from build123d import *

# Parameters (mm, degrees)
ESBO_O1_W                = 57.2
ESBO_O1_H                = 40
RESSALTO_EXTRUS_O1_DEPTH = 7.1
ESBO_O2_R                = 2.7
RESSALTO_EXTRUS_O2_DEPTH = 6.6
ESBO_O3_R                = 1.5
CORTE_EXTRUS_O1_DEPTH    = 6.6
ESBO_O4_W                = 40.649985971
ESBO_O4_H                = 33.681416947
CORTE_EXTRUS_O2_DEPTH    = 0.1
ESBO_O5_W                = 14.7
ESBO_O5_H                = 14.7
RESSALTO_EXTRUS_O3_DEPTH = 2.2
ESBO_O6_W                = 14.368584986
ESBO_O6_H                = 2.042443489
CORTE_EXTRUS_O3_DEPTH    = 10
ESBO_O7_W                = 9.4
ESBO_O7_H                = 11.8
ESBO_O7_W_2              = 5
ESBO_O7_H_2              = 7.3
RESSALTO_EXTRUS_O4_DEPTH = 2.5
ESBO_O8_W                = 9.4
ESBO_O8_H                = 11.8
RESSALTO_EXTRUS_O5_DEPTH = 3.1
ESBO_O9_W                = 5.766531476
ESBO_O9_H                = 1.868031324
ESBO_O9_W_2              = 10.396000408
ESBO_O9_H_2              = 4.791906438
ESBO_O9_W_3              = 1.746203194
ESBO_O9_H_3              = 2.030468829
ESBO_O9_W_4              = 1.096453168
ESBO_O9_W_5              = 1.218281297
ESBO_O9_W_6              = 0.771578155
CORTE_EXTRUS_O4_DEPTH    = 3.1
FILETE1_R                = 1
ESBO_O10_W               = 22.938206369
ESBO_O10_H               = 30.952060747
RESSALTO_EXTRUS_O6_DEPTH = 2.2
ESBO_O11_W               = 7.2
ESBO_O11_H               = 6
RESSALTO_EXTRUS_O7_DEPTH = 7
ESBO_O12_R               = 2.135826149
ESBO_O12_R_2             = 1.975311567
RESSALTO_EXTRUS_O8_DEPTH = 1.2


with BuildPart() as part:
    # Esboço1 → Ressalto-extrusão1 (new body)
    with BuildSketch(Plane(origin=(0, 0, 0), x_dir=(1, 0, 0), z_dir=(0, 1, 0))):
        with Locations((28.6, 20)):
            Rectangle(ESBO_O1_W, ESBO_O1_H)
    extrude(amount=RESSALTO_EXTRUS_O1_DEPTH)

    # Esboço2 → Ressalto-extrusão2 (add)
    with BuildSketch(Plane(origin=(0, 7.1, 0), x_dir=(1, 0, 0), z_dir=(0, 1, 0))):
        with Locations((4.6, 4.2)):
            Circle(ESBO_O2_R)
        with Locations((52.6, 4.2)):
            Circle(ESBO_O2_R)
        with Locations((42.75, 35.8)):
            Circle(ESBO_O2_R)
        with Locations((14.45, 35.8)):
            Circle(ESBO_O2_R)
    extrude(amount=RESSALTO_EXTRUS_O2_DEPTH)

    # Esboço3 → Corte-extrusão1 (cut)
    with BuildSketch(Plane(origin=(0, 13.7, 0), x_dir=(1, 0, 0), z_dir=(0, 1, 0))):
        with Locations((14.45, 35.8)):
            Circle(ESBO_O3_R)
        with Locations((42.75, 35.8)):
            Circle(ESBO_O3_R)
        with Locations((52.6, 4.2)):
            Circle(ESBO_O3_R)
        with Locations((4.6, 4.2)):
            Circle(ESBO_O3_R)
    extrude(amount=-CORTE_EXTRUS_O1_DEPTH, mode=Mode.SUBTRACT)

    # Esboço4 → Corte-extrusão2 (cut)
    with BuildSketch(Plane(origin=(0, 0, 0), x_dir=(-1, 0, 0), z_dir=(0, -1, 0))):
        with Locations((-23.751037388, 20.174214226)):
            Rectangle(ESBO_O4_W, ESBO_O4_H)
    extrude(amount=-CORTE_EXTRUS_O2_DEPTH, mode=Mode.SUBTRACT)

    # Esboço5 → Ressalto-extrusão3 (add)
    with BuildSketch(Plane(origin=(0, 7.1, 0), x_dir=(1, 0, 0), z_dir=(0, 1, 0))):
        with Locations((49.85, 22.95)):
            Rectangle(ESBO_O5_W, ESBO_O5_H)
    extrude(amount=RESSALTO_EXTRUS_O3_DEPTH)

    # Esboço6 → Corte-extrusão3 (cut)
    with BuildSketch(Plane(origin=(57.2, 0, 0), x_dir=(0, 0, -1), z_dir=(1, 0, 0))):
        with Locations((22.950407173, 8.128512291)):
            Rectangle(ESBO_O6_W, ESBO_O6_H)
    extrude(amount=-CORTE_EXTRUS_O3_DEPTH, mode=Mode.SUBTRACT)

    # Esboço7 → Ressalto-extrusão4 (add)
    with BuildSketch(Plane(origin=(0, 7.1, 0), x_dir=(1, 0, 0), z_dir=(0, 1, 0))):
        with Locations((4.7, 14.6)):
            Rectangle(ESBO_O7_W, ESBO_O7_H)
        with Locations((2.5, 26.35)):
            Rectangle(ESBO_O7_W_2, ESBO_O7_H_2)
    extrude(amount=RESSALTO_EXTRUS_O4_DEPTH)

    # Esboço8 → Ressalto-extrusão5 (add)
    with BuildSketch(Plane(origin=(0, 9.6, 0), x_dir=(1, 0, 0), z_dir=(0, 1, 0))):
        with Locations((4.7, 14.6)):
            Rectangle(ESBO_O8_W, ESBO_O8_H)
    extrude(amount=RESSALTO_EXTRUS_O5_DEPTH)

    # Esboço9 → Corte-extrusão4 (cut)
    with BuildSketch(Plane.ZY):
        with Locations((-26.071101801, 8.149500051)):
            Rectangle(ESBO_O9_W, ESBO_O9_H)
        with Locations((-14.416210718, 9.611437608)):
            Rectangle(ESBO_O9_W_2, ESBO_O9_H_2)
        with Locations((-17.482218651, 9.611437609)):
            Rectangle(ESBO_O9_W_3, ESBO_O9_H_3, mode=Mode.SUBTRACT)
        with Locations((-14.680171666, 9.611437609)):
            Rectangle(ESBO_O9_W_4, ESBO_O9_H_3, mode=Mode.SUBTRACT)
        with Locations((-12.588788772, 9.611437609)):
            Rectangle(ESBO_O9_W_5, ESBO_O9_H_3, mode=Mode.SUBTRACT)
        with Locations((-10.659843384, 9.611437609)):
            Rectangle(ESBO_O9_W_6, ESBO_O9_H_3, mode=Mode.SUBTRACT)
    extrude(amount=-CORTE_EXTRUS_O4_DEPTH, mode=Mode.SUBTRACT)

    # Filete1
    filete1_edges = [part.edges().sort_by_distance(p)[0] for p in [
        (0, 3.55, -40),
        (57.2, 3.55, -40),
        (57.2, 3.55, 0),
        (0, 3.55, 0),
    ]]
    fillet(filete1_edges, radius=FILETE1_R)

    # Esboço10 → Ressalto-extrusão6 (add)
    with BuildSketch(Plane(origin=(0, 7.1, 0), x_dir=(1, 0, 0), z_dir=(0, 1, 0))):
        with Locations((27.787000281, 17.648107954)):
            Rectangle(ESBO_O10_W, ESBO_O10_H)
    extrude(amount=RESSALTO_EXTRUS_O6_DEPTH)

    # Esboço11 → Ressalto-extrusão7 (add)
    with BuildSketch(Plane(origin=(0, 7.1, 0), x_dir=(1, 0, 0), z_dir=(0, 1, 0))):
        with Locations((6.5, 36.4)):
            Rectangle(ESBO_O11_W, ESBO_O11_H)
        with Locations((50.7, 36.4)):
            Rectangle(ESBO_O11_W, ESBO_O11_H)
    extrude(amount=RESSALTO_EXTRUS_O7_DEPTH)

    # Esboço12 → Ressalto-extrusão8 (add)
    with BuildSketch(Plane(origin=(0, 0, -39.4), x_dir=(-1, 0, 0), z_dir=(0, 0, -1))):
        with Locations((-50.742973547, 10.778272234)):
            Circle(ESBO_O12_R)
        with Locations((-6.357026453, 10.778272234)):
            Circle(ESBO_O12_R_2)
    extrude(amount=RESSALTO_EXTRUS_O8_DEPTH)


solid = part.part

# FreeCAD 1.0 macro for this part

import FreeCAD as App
import Part
import Sketcher


def edges_at(feature, points):
    """Names of the edges that pass closest to the given points."""
    edges = feature.Shape.Edges
    near = lambda p: min(range(len(edges)), key=lambda i: edges[i].distToShape(Part.Vertex(*p))[0])
    return sorted({f"Edge{near(p) + 1}" for p in points})


def add_polygon(sketch, points):
    """Adds a closed chain of lines whose ends are joined by coincident constraints."""
    first, n = sketch.GeometryCount, len(points)
    for a, b in zip(points, points[1:] + points[:1]):
        sketch.addGeometry(Part.LineSegment(App.Vector(*a, 0), App.Vector(*b, 0)), False)
    for i in range(n):
        sketch.addConstraint(Sketcher.Constraint("Coincident", first + i, 2, first + (i + 1) % n, 1))

doc = App.newDocument("Part")
body = doc.addObject("PartDesign::Body", "Body")

# Sketch on XZ plane
sketch1 = body.newObject("Sketcher::SketchObject", "Sketch")
sketch1.AttachmentSupport = (doc.getObject("XZ_Plane"), [""])
sketch1.MapMode = "FlatFace"
add_polygon(sketch1, [(0, -40), (0, 0), (57, 0), (57, -40)])  # lines 0-3
sketch1.addConstraint([
    Sketcher.Constraint("Vertical", 0),
    Sketcher.Constraint("Horizontal", 1),
    Sketcher.Constraint("Vertical", 2),
    Sketcher.Constraint("Horizontal", 3),
    Sketcher.Constraint("Coincident", 0, 2, -1, 1),
    Sketcher.Constraint("DistanceY", 0, 1, 0, 2, 40.0),
    Sketcher.Constraint("DistanceX", 1, 1, 1, 2, 57.2),
])
pad1 = body.newObject("PartDesign::Pad", "Pad")
pad1.Profile = sketch1
pad1.Length = 7.1
pad1.Reversed = True

# Sketch on XZ plane
sketch2 = body.newObject("Sketcher::SketchObject", "Sketch001")
sketch2.AttachmentSupport = (doc.getObject("XZ_Plane"), [""])
sketch2.MapMode = "FlatFace"
sketch2.AttachmentOffset = App.Placement(App.Vector(0, 0, -7.1), App.Rotation())
sketch2.addGeometry([
    Part.Circle(App.Vector(4.6, -4.2, 0), App.Vector(0, 0, 1), 2.7),
    Part.Circle(App.Vector(52.6, -4.2, 0), App.Vector(0, 0, 1), 2.7),
    Part.Circle(App.Vector(42.8, -35.8, 0), App.Vector(0, 0, 1), 2.7),
    Part.Circle(App.Vector(14.4, -35.8, 0), App.Vector(0, 0, 1), 2.7),
], False)
sketch2.addConstraint([
    Sketcher.Constraint("Equal", 0, 1),
    Sketcher.Constraint("Equal", 1, 2),
    Sketcher.Constraint("Equal", 2, 3),
    Sketcher.Constraint("Horizontal", 0, 3, 1, 3),
    Sketcher.Constraint("Horizontal", 2, 3, 3, 3),
    Sketcher.Constraint("Diameter", 0, 5.4),
    Sketcher.Constraint("DistanceX", 0, 3, 1, 3, 48.0),
    Sketcher.Constraint("DistanceX", -1, 1, 0, 3, 4.6),
    Sketcher.Constraint("DistanceY", 0, 3, -1, 1, 4.2),
    Sketcher.Constraint("DistanceY", 2, 3, -1, 1, 35.8),
    Sketcher.Constraint("DistanceX", 3, 3, 2, 3, 28.3),
    Sketcher.Constraint("DistanceX", -1, 1, 2, 3, 42.75),
])
pad2 = body.newObject("PartDesign::Pad", "Pad001")
pad2.Profile = sketch2
pad2.Length = 6.6
pad2.Reversed = True

# Sketch on XZ plane
sketch3 = body.newObject("Sketcher::SketchObject", "Sketch002")
sketch3.AttachmentSupport = (doc.getObject("XZ_Plane"), [""])
sketch3.MapMode = "FlatFace"
sketch3.AttachmentOffset = App.Placement(App.Vector(0, 0, -13.7), App.Rotation())
sketch3.addGeometry([
    Part.Circle(App.Vector(14.4, -35.8, 0), App.Vector(0, 0, 1), 1.5),
    Part.Circle(App.Vector(42.8, -35.8, 0), App.Vector(0, 0, 1), 1.5),
    Part.Circle(App.Vector(52.6, -4.2, 0), App.Vector(0, 0, 1), 1.5),
    Part.Circle(App.Vector(4.6, -4.2, 0), App.Vector(0, 0, 1), 1.5),
], False)
sketch3.addConstraint([
    Sketcher.Constraint("Equal", 0, 1),
    Sketcher.Constraint("Equal", 1, 2),
    Sketcher.Constraint("Equal", 2, 3),
    Sketcher.Constraint("Horizontal", 0, 3, 1, 3),
    Sketcher.Constraint("Horizontal", 2, 3, 3, 3),
    Sketcher.Constraint("Diameter", 0, 3.0),
    Sketcher.Constraint("DistanceX", 3, 3, 2, 3, 48.0),
    Sketcher.Constraint("DistanceY", 0, 3, -1, 1, 35.8),
    Sketcher.Constraint("DistanceX", -1, 1, 2, 3, 52.6),
    Sketcher.Constraint("DistanceY", 2, 3, -1, 1, 4.2),
    Sketcher.Constraint("DistanceX", 0, 3, 1, 3, 28.3),
    Sketcher.Constraint("DistanceX", -1, 1, 0, 3, 14.45),
])
pocket1 = body.newObject("PartDesign::Pocket", "Pocket")
pocket1.Profile = sketch3
pocket1.Length = 6.6
pocket1.Reversed = True

# Sketch on XZ plane
sketch4 = body.newObject("Sketcher::SketchObject", "Sketch003")
sketch4.AttachmentSupport = (doc.getObject("XZ_Plane"), [""])
sketch4.MapMode = "FlatFace"
add_polygon(sketch4, [(44, -37), (44, -3), (3, -3), (3, -37)])  # lines 0-3
sketch4.addConstraint([
    Sketcher.Constraint("Vertical", 0),
    Sketcher.Constraint("Horizontal", 1),
    Sketcher.Constraint("Vertical", 2),
    Sketcher.Constraint("Horizontal", 3),
    Sketcher.Constraint("DistanceX", 1, 2, 1, 1, 40.649986),
    Sketcher.Constraint("DistanceY", 0, 1, 0, 2, 33.681417),
    Sketcher.Constraint("DistanceX", -1, 1, 0, 2, 44.07603),
    Sketcher.Constraint("DistanceY", 0, 2, -1, 1, 3.333506),
])
pocket2 = body.newObject("PartDesign::Pocket", "Pocket001")
pocket2.Profile = sketch4
pocket2.Length = 0.1

# Sketch on XZ plane
sketch5 = body.newObject("Sketcher::SketchObject", "Sketch004")
sketch5.AttachmentSupport = (doc.getObject("XZ_Plane"), [""])
sketch5.MapMode = "FlatFace"
sketch5.AttachmentOffset = App.Placement(App.Vector(0, 0, -7.1), App.Rotation())
add_polygon(sketch5, [(42, -30), (42, -16), (57, -16), (57, -30)])  # lines 0-3
sketch5.addConstraint([
    Sketcher.Constraint("Vertical", 0),
    Sketcher.Constraint("Horizontal", 1),
    Sketcher.Constraint("Vertical", 2),
    Sketcher.Constraint("Horizontal", 3),
    Sketcher.Constraint("Equal", 3, 0),
    Sketcher.Constraint("DistanceX", 1, 1, 1, 2, 14.7),
    Sketcher.Constraint("DistanceX", -1, 1, 0, 2, 42.5),
    Sketcher.Constraint("DistanceY", 0, 2, -1, 1, 15.6),
])
pad3 = body.newObject("PartDesign::Pad", "Pad002")
pad3.Profile = sketch5
pad3.Length = 2.2
pad3.Reversed = True

# Sketch on YZ plane
sketch6 = body.newObject("Sketcher::SketchObject", "Sketch005")
sketch6.AttachmentSupport = (doc.getObject("YZ_Plane"), [""])
sketch6.MapMode = "FlatFace"
sketch6.AttachmentOffset = App.Placement(App.Vector(0, 0, 57.2), App.Rotation())
add_polygon(sketch6, [(9.1, -15.8), (7.1, -15.8), (7.1, -30.1), (9.1, -30.1)])  # lines 0-3
sketch6.addConstraint([
    Sketcher.Constraint("Horizontal", 0),
    Sketcher.Constraint("Vertical", 1),
    Sketcher.Constraint("Horizontal", 2),
    Sketcher.Constraint("Vertical", 3),
    Sketcher.Constraint("DistanceY", 1, 2, -1, 1, 30.1347),
    Sketcher.Constraint("DistanceX", 0, 2, 0, 1, 2.042443),
    Sketcher.Constraint("DistanceY", 1, 2, 1, 1, 14.368585),
    Sketcher.Constraint("DistanceX", -1, 1, 0, 2, 7.107291),
])
pocket3 = body.newObject("PartDesign::Pocket", "Pocket002")
pocket3.Profile = sketch6
pocket3.Length = 10

# Sketch on XZ plane
sketch7 = body.newObject("Sketcher::SketchObject", "Sketch006")
sketch7.AttachmentSupport = (doc.getObject("XZ_Plane"), [""])
sketch7.MapMode = "FlatFace"
sketch7.AttachmentOffset = App.Placement(App.Vector(0, 0, -7.1), App.Rotation())
add_polygon(sketch7, [(0, -20), (0, -9), (9, -9), (9, -20)])  # lines 0-3
add_polygon(sketch7, [(0, -30), (0, -23), (5, -23), (5, -30)])  # lines 4-7
sketch7.addConstraint([
    Sketcher.Constraint("Vertical", 0),
    Sketcher.Constraint("Horizontal", 1),
    Sketcher.Constraint("Vertical", 2),
    Sketcher.Constraint("Horizontal", 3),
    Sketcher.Constraint("Vertical", 4),
    Sketcher.Constraint("Horizontal", 5),
    Sketcher.Constraint("Vertical", 6),
    Sketcher.Constraint("Horizontal", 7),
    Sketcher.Constraint("PointOnObject", 0, 2, -2),
    Sketcher.Constraint("PointOnObject", 4, 2, -2),
    Sketcher.Constraint("DistanceX", 5, 1, 5, 2, 5.0),
    Sketcher.Constraint("DistanceX", 1, 1, 1, 2, 9.4),
    Sketcher.Constraint("DistanceY", 0, 1, 0, 2, 11.8),
    Sketcher.Constraint("DistanceY", 4, 1, 4, 2, 7.3),
    Sketcher.Constraint("DistanceY", 6, 2, -1, 1, 30.0),
    Sketcher.Constraint("DistanceY", 4, 2, 0, 2, 14.0),
])
pad4 = body.newObject("PartDesign::Pad", "Pad003")
pad4.Profile = sketch7
pad4.Length = 2.5
pad4.Reversed = True

# Sketch on XZ plane
sketch8 = body.newObject("Sketcher::SketchObject", "Sketch007")
sketch8.AttachmentSupport = (doc.getObject("XZ_Plane"), [""])
sketch8.MapMode = "FlatFace"
sketch8.AttachmentOffset = App.Placement(App.Vector(0, 0, -9.6), App.Rotation())
add_polygon(sketch8, [(0, -20), (0, -9), (9, -9), (9, -20)])  # lines 0-3
sketch8.addConstraint([
    Sketcher.Constraint("Vertical", 0),
    Sketcher.Constraint("Horizontal", 1),
    Sketcher.Constraint("Vertical", 2),
    Sketcher.Constraint("Horizontal", 3),
    Sketcher.Constraint("PointOnObject", 0, 2, -2),
    Sketcher.Constraint("DistanceX", 1, 1, 1, 2, 9.4),
    Sketcher.Constraint("DistanceY", 0, 1, 0, 2, 11.8),
    Sketcher.Constraint("DistanceY", 0, 2, -1, 1, 8.7),
])
pad5 = body.newObject("PartDesign::Pad", "Pad004")
pad5.Profile = sketch8
pad5.Length = 3.1
pad5.Reversed = True

# Sketch on YZ plane
sketch9 = body.newObject("Sketcher::SketchObject", "Sketch008")
sketch9.AttachmentSupport = (doc.getObject("YZ_Plane"), [""])
sketch9.MapMode = "FlatFace"
add_polygon(sketch9, [(9.1, -29), (7.2, -29), (7.2, -23.2), (9.1, -23.2)])  # lines 0-3
add_polygon(sketch9, [(12, -19.6), (7.2, -19.6), (7.2, -9.2), (12, -9.2)])  # lines 4-7
add_polygon(sketch9, [(8.6, -16.6), (8.6, -18.4), (10.6, -18.4), (10.6, -16.6)])  # lines 8-11
add_polygon(sketch9, [(8.6, -14.1), (8.6, -15.2), (10.6, -15.2), (10.6, -14.1)])  # lines 12-15
add_polygon(sketch9, [(8.6, -12), (8.6, -13.2), (10.6, -13.2), (10.6, -12)])  # lines 16-19
add_polygon(sketch9, [(8.6, -10.3), (8.6, -11), (10.6, -11), (10.6, -10.3)])  # lines 20-23
sketch9.addConstraint([
    Sketcher.Constraint("Horizontal", 0),
    Sketcher.Constraint("Vertical", 1),
    Sketcher.Constraint("Horizontal", 2),
    Sketcher.Constraint("Vertical", 3),
    Sketcher.Constraint("Horizontal", 4),
    Sketcher.Constraint("Vertical", 5),
    Sketcher.Constraint("Horizontal", 6),
    Sketcher.Constraint("Vertical", 7),
    Sketcher.Constraint("Vertical", 8),
    Sketcher.Constraint("Horizontal", 9),
    Sketcher.Constraint("Vertical", 10),
    Sketcher.Constraint("Horizontal", 11),
    Sketcher.Constraint("Vertical", 12),
    Sketcher.Constraint("Horizontal", 13),
    Sketcher.Constraint("Vertical", 14),
    Sketcher.Constraint("Horizontal", 15),
    Sketcher.Constraint("Vertical", 16),
    Sketcher.Constraint("Horizontal", 17),
    Sketcher.Constraint("Vertical", 18),
    Sketcher.Constraint("Horizontal", 19),
    Sketcher.Constraint("Vertical", 20),
    Sketcher.Constraint("Horizontal", 21),
    Sketcher.Constraint("Vertical", 22),
    Sketcher.Constraint("Horizontal", 23),
    Sketcher.Constraint("Vertical", 1, 2, 4, 2),
    Sketcher.Constraint("Vertical", 11, 2, 12, 2),
    Sketcher.Constraint("Vertical", 10, 2, 13, 2),
    Sketcher.Constraint("Vertical", 15, 2, 16, 2),
    Sketcher.Constraint("Vertical", 14, 2, 17, 2),
    Sketcher.Constraint("Vertical", 19, 2, 20, 2),
    Sketcher.Constraint("Vertical", 18, 2, 21, 2),
    Sketcher.Constraint("DistanceY", 5, 1, 5, 2, 10.396),
    Sketcher.Constraint("DistanceX", 0, 2, 0, 1, 1.868031),
    Sketcher.Constraint("DistanceX", 9, 1, 9, 2, 2.030469),
    Sketcher.Constraint("DistanceY", 1, 1, 1, 2, 5.766531),
    Sketcher.Constraint("DistanceY", 16, 2, 16, 1, 1.218281),
    Sketcher.Constraint("DistanceY", 20, 2, 20, 1, 0.771578),
    Sketcher.Constraint("DistanceY", 12, 2, -1, 1, 15.228398),
    Sketcher.Constraint("DistanceX", 4, 2, 4, 1, 4.791906),
    Sketcher.Constraint("DistanceY", 8, 2, 8, 1, 1.746203),
    Sketcher.Constraint("DistanceY", 12, 2, 12, 1, 1.096453),
    Sketcher.Constraint("DistanceY", 4, 2, -1, 1, 19.614211),
    Sketcher.Constraint("DistanceX", -1, 1, 6, 2, 12.007391),
    Sketcher.Constraint("DistanceY", 8, 2, -1, 1, 18.35532),
    Sketcher.Constraint("DistanceY", 16, 2, -1, 1, 13.197929),
    Sketcher.Constraint("DistanceX", 4, 2, 8, 2, 1.380719),
    Sketcher.Constraint("DistanceY", 2, 2, 10, 2, 6.578719),
    Sketcher.Constraint("DistanceY", 20, 2, 5, 2, 1.827422),
])
pocket4 = body.newObject("PartDesign::Pocket", "Pocket003")
pocket4.Profile = sketch9
pocket4.Length = 3.1
pocket4.Reversed = True
doc.recompute()

fillet = body.newObject("PartDesign::Fillet", "Fillet")
fillet.Base = (pocket4, edges_at(pocket4, [
    (0, 3.55, -40),
    (57.2, 3.55, -40),
    (57.2, 3.55, 0),
    (0, 3.55, 0),
]))
fillet.Radius = 1

# Sketch on XZ plane
sketch10 = body.newObject("Sketcher::SketchObject", "Sketch009")
sketch10.AttachmentSupport = (doc.getObject("XZ_Plane"), [""])
sketch10.MapMode = "FlatFace"
sketch10.AttachmentOffset = App.Placement(App.Vector(0, 0, -7.1), App.Rotation())
add_polygon(sketch10, [(16, -33), (16, -2), (39, -2), (39, -33)])  # lines 0-3
sketch10.addConstraint([
    Sketcher.Constraint("Vertical", 0),
    Sketcher.Constraint("Horizontal", 1),
    Sketcher.Constraint("Vertical", 2),
    Sketcher.Constraint("Horizontal", 3),
    Sketcher.Constraint("DistanceY", 0, 1, 0, 2, 30.952061),
    Sketcher.Constraint("DistanceX", 1, 1, 1, 2, 22.938206),
    Sketcher.Constraint("DistanceY", 2, 2, -1, 1, 33.124138),
    Sketcher.Constraint("DistanceX", -1, 1, 0, 2, 16.317897),
])
pad6 = body.newObject("PartDesign::Pad", "Pad005")
pad6.Profile = sketch10
pad6.Length = 2.2
pad6.Reversed = True

# Sketch on XZ plane
sketch11 = body.newObject("Sketcher::SketchObject", "Sketch010")
sketch11.AttachmentSupport = (doc.getObject("XZ_Plane"), [""])
sketch11.MapMode = "FlatFace"
sketch11.AttachmentOffset = App.Placement(App.Vector(0, 0, -7.1), App.Rotation())
add_polygon(sketch11, [(3, -39), (3, -33), (10, -33), (10, -39)])  # lines 0-3
add_polygon(sketch11, [(47, -39), (47, -33), (54, -33), (54, -39)])  # lines 4-7
sketch11.addConstraint([
    Sketcher.Constraint("Vertical", 0),
    Sketcher.Constraint("Horizontal", 1),
    Sketcher.Constraint("Vertical", 2),
    Sketcher.Constraint("Horizontal", 3),
    Sketcher.Constraint("Vertical", 4),
    Sketcher.Constraint("Horizontal", 5),
    Sketcher.Constraint("Vertical", 6),
    Sketcher.Constraint("Horizontal", 7),
    Sketcher.Constraint("Horizontal", 1, 2, 4, 2),
    Sketcher.Constraint("Horizontal", 3, 2, 6, 2),
    Sketcher.Constraint("Equal", 3, 5),
    Sketcher.Constraint("DistanceY", 0, 1, 0, 2, 6.0),
    Sketcher.Constraint("DistanceX", 1, 1, 1, 2, 7.2),
    Sketcher.Constraint("DistanceX", 1, 2, 4, 2, 37.0),
    Sketcher.Constraint("DistanceX", -1, 1, 0, 2, 2.9),
    Sketcher.Constraint("DistanceY", 0, 2, -1, 1, 33.4),
])
pad7 = body.newObject("PartDesign::Pad", "Pad006")
pad7.Profile = sketch11
pad7.Length = 7
pad7.Reversed = True

# Sketch on XY plane
sketch12 = body.newObject("Sketcher::SketchObject", "Sketch011")
sketch12.AttachmentSupport = (doc.getObject("XY_Plane"), [""])
sketch12.MapMode = "FlatFace"
sketch12.AttachmentOffset = App.Placement(App.Vector(0, 0, -39.4), App.Rotation())
sketch12.addGeometry([
    Part.Circle(App.Vector(50.7, 10.8, 0), App.Vector(0, 0, 1), 2.1),
    Part.Circle(App.Vector(6.4, 10.8, 0), App.Vector(0, 0, 1), 2),
], False)
sketch12.addConstraint([
    Sketcher.Constraint("Horizontal", 0, 3, 1, 3),
    Sketcher.Constraint("Diameter", 0, 4.271652),
    Sketcher.Constraint("Diameter", 1, 3.950623),
    Sketcher.Constraint("DistanceX", -1, 1, 0, 3, 50.742974),
    Sketcher.Constraint("DistanceY", -1, 1, 0, 3, 10.778272),
    Sketcher.Constraint("DistanceX", -1, 1, 1, 3, 6.357026),
])
pad8 = body.newObject("PartDesign::Pad", "Pad007")
pad8.Profile = sketch12
pad8.Length = 1.2
pad8.Reversed = True

doc.recompute()
